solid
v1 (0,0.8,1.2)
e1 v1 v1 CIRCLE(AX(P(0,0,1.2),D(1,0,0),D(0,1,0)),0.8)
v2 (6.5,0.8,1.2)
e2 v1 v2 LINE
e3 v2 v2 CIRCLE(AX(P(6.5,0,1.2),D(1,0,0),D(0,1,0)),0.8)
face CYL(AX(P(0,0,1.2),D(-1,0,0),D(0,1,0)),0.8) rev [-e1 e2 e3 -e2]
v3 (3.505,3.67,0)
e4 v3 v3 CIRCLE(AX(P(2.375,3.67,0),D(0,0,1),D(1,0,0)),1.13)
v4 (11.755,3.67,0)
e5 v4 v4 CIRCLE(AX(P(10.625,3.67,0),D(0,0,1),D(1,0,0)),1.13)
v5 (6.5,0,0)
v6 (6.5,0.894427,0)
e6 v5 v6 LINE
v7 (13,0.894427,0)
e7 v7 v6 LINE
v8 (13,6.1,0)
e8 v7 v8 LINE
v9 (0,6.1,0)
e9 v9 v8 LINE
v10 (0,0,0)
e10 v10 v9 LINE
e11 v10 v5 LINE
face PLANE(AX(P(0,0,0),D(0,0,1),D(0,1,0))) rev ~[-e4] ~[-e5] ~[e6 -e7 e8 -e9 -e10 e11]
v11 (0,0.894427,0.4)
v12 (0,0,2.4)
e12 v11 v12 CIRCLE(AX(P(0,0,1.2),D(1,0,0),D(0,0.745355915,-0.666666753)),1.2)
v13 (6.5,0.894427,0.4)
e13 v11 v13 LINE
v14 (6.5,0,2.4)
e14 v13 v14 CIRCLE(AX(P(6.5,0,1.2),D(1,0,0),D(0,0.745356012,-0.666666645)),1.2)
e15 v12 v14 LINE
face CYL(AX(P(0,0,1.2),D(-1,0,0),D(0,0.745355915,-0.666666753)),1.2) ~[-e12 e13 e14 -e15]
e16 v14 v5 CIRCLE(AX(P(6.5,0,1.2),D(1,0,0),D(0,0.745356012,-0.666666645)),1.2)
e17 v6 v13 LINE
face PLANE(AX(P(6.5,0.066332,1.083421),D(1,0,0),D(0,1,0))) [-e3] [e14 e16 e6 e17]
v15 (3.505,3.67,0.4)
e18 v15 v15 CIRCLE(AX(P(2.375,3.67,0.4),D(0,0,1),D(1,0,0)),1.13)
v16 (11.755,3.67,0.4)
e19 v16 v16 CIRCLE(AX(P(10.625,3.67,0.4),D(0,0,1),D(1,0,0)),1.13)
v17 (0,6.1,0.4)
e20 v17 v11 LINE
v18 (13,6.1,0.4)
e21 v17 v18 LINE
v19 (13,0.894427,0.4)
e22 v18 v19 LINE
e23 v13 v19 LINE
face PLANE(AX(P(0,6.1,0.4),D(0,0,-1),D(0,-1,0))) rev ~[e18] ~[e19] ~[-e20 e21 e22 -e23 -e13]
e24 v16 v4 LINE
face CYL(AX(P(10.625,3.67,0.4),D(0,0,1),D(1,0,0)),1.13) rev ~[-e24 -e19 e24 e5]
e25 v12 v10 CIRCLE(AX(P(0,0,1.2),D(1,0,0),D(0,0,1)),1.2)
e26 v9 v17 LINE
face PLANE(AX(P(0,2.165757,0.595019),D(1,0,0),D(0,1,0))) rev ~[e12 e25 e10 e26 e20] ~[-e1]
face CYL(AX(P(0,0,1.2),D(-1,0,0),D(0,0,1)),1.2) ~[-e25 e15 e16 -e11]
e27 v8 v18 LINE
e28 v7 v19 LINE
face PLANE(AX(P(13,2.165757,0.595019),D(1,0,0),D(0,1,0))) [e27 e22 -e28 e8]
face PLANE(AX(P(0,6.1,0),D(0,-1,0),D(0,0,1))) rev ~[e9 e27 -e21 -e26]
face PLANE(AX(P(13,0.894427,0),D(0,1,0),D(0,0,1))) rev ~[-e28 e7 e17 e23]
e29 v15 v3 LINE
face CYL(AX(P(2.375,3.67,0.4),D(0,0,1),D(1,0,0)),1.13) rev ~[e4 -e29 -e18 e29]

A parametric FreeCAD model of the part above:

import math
import FreeCAD as App
import Part
import Sketcher
from FreeCAD import Vector

doc = App.newDocument("Part")
body = doc.addObject("PartDesign::Body", "Body")

sketch1 = body.newObject("Sketcher::SketchObject", "Sketch")
sketch1.AttachmentSupport = (doc.getObject("YZ_Plane"), [""])
sketch1.MapMode = "FlatFace"
sketch1.addGeometry(Part.ArcOfCircle(Part.Circle(Vector(0, 1.2, 0), Vector(0, 0, 1), 1.2), math.radians(90), math.radians(270)), False)
sketch1.addGeometry(Part.LineSegment(Vector(0, 0, 0), Vector(6.1, 0, 0)), False)
sketch1.addGeometry(Part.LineSegment(Vector(6.1, 0, 0), Vector(6.1, 0.4, 0)), False)
sketch1.addGeometry(Part.LineSegment(Vector(6.1, 0.4, 0), Vector(0.89, 0.4, 0)), False)
sketch1.addGeometry(Part.ArcOfCircle(Part.Circle(Vector(0, 1.2, 0), Vector(0, 0, 1), 1.2), math.radians(-42), math.radians(90)), False)
sketch1.addGeometry(Part.Circle(Vector(0, 1.2, 0), Vector(0, 0, 1), 0.8), False)
sketch1.addConstraint(Sketcher.Constraint("Tangent", 0, 2, 1, 1))
sketch1.addConstraint(Sketcher.Constraint("Coincident", 1, 2, 2, 1))
sketch1.addConstraint(Sketcher.Constraint("Coincident", 2, 2, 3, 1))
sketch1.addConstraint(Sketcher.Constraint("Coincident", 3, 2, 4, 1))
sketch1.addConstraint(Sketcher.Constraint("Tangent", 4, 2, 0, 1))
sketch1.addConstraint(Sketcher.Constraint("Horizontal", 1))
sketch1.addConstraint(Sketcher.Constraint("Vertical", 2))
sketch1.addConstraint(Sketcher.Constraint("Horizontal", 3))
sketch1.addConstraint(Sketcher.Constraint("Coincident", 0, 2, -1, 1))
sketch1.addConstraint(Sketcher.Constraint("Coincident", 5, 3, 0, 3))
sketch1.addConstraint(Sketcher.Constraint("Equal", 0, 4))
sketch1.addConstraint(Sketcher.Constraint("PointOnObject", 4, 2, -2))
sketch1.addConstraint(Sketcher.Constraint("Diameter", 5, 1.6))
sketch1.addConstraint(Sketcher.Constraint("Radius", 0, 1.2))
sketch1.addConstraint(Sketcher.Constraint("DistanceX", 1, 1, 1, 2, 6.1))
sketch1.addConstraint(Sketcher.Constraint("DistanceY", 2, 1, 2, 2, 0.4))
pad1 = body.newObject("PartDesign::Pad", "Pad")
pad1.Profile = sketch1
pad1.Length = 13

sketch2 = body.newObject("Sketcher::SketchObject", "Sketch001")
sketch2.AttachmentSupport = (doc.getObject("YZ_Plane"), [""])
sketch2.MapMode = "FlatFace"
sketch2.AttachmentOffset = App.Placement(Vector(0, 0, 13), App.Rotation())
sketch2.addGeometry(Part.LineSegment(Vector(0.89, 0, 0), Vector(0.89, 0.4, 0)), False)
sketch2.addGeometry(Part.ArcOfCircle(Part.Circle(Vector(0, 1.2, 0), Vector(0, 0, 1), 1.2), math.radians(-42), math.radians(270)), False)
sketch2.addGeometry(Part.LineSegment(Vector(0, 0, 0), Vector(0.89, 0, 0)), False)
sketch2.addGeometry(Part.Circle(Vector(0, 1.2, 0), Vector(0, 0, 1), 0.8), False)
sketch2.addConstraint(Sketcher.Constraint("Coincident", 0, 2, 1, 1))
sketch2.addConstraint(Sketcher.Constraint("Tangent", 1, 2, 2, 1))
sketch2.addConstraint(Sketcher.Constraint("Coincident", 2, 2, 0, 1))
sketch2.addConstraint(Sketcher.Constraint("Vertical", 0))
sketch2.addConstraint(Sketcher.Constraint("Horizontal", 2))
sketch2.addConstraint(Sketcher.Constraint("Coincident", 1, 2, -1, 1))
sketch2.addConstraint(Sketcher.Constraint("Coincident", 3, 3, 1, 3))
sketch2.addConstraint(Sketcher.Constraint("Diameter", 3, 1.6))
sketch2.addConstraint(Sketcher.Constraint("Radius", 1, 1.2))
sketch2.addConstraint(Sketcher.Constraint("DistanceY", 0, 1, 0, 2, 0.4))
pocket1 = body.newObject("PartDesign::Pocket", "Pocket")
pocket1.Profile = sketch2
pocket1.Length = 6.5

sketch3 = body.newObject("Sketcher::SketchObject", "Sketch002")
sketch3.AttachmentSupport = (doc.getObject("XY_Plane"), [""])
sketch3.MapMode = "FlatFace"
sketch3.AttachmentOffset = App.Placement(Vector(0, 0, 0.4), App.Rotation())
sketch3.addGeometry(Part.Circle(Vector(2.4, 3.7, 0), Vector(0, 0, 1), 1.1), False)
sketch3.addGeometry(Part.Circle(Vector(10.6, 3.7, 0), Vector(0, 0, 1), 1.1), False)
sketch3.addConstraint(Sketcher.Constraint("Equal", 0, 1))
sketch3.addConstraint(Sketcher.Constraint("Horizontal", 0, 3, 1, 3))
sketch3.addConstraint(Sketcher.Constraint("Diameter", 0, 2.26))
sketch3.addConstraint(Sketcher.Constraint("DistanceY", -1, 1, 0, 3, 3.67))
sketch3.addConstraint(Sketcher.Constraint("DistanceX", 0, 3, 1, 3, 8.25))
sketch3.addConstraint(Sketcher.Constraint("DistanceX", -1, 1, 0, 3, 2.375))
pocket2 = body.newObject("PartDesign::Pocket", "Pocket001")
pocket2.Profile = sketch3
pocket2.Type = "ThroughAll"

doc.recompute()
